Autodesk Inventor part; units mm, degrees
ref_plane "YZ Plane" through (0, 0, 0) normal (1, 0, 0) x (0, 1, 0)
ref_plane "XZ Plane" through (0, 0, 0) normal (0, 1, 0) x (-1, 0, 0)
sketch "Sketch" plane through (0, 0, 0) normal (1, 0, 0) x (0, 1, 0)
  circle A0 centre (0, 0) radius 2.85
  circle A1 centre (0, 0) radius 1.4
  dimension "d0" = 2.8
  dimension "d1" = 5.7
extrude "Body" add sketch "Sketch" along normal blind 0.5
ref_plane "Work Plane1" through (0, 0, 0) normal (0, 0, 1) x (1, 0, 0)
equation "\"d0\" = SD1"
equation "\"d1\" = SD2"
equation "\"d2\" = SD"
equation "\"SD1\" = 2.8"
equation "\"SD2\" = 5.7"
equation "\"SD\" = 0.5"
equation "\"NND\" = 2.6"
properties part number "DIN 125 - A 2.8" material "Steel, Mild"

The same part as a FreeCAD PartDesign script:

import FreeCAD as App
import Part
import Sketcher
from FreeCAD import Vector
Q = App.Units.Quantity

doc = App.newDocument("Part")
body = doc.addObject("PartDesign::Body", "Body")

# Sketch on YZ plane
sketch1 = doc.addObject("Sketcher::SketchObject", "Sketch")
body.addObject(sketch1)
sketch1.AttachmentSupport = (doc.YZ_Plane, [""])
sketch1.MapMode = "FlatFace"
sketch1.addGeometry([
    Part.Circle(Vector(0, 0, 0), Vector(0, 0, 1), 2.9),
    Part.Circle(Vector(0, 0, 0), Vector(0, 0, 1), 1.4),
], False)
sketch1.addConstraint([
    Sketcher.Constraint("Coincident", 0, 3, -1, 1),
    Sketcher.Constraint("Coincident", 1, 3, -1, 1),
    Sketcher.Constraint("Diameter", 0, Q("5.7 mm")),
    Sketcher.Constraint("Diameter", 1, Q("2.8 mm")),
])
pad1 = doc.addObject("PartDesign::Pad", "Pad")
body.addObject(pad1)
pad1.Profile = sketch1
pad1.Length = 0.5

doc.recompute()
